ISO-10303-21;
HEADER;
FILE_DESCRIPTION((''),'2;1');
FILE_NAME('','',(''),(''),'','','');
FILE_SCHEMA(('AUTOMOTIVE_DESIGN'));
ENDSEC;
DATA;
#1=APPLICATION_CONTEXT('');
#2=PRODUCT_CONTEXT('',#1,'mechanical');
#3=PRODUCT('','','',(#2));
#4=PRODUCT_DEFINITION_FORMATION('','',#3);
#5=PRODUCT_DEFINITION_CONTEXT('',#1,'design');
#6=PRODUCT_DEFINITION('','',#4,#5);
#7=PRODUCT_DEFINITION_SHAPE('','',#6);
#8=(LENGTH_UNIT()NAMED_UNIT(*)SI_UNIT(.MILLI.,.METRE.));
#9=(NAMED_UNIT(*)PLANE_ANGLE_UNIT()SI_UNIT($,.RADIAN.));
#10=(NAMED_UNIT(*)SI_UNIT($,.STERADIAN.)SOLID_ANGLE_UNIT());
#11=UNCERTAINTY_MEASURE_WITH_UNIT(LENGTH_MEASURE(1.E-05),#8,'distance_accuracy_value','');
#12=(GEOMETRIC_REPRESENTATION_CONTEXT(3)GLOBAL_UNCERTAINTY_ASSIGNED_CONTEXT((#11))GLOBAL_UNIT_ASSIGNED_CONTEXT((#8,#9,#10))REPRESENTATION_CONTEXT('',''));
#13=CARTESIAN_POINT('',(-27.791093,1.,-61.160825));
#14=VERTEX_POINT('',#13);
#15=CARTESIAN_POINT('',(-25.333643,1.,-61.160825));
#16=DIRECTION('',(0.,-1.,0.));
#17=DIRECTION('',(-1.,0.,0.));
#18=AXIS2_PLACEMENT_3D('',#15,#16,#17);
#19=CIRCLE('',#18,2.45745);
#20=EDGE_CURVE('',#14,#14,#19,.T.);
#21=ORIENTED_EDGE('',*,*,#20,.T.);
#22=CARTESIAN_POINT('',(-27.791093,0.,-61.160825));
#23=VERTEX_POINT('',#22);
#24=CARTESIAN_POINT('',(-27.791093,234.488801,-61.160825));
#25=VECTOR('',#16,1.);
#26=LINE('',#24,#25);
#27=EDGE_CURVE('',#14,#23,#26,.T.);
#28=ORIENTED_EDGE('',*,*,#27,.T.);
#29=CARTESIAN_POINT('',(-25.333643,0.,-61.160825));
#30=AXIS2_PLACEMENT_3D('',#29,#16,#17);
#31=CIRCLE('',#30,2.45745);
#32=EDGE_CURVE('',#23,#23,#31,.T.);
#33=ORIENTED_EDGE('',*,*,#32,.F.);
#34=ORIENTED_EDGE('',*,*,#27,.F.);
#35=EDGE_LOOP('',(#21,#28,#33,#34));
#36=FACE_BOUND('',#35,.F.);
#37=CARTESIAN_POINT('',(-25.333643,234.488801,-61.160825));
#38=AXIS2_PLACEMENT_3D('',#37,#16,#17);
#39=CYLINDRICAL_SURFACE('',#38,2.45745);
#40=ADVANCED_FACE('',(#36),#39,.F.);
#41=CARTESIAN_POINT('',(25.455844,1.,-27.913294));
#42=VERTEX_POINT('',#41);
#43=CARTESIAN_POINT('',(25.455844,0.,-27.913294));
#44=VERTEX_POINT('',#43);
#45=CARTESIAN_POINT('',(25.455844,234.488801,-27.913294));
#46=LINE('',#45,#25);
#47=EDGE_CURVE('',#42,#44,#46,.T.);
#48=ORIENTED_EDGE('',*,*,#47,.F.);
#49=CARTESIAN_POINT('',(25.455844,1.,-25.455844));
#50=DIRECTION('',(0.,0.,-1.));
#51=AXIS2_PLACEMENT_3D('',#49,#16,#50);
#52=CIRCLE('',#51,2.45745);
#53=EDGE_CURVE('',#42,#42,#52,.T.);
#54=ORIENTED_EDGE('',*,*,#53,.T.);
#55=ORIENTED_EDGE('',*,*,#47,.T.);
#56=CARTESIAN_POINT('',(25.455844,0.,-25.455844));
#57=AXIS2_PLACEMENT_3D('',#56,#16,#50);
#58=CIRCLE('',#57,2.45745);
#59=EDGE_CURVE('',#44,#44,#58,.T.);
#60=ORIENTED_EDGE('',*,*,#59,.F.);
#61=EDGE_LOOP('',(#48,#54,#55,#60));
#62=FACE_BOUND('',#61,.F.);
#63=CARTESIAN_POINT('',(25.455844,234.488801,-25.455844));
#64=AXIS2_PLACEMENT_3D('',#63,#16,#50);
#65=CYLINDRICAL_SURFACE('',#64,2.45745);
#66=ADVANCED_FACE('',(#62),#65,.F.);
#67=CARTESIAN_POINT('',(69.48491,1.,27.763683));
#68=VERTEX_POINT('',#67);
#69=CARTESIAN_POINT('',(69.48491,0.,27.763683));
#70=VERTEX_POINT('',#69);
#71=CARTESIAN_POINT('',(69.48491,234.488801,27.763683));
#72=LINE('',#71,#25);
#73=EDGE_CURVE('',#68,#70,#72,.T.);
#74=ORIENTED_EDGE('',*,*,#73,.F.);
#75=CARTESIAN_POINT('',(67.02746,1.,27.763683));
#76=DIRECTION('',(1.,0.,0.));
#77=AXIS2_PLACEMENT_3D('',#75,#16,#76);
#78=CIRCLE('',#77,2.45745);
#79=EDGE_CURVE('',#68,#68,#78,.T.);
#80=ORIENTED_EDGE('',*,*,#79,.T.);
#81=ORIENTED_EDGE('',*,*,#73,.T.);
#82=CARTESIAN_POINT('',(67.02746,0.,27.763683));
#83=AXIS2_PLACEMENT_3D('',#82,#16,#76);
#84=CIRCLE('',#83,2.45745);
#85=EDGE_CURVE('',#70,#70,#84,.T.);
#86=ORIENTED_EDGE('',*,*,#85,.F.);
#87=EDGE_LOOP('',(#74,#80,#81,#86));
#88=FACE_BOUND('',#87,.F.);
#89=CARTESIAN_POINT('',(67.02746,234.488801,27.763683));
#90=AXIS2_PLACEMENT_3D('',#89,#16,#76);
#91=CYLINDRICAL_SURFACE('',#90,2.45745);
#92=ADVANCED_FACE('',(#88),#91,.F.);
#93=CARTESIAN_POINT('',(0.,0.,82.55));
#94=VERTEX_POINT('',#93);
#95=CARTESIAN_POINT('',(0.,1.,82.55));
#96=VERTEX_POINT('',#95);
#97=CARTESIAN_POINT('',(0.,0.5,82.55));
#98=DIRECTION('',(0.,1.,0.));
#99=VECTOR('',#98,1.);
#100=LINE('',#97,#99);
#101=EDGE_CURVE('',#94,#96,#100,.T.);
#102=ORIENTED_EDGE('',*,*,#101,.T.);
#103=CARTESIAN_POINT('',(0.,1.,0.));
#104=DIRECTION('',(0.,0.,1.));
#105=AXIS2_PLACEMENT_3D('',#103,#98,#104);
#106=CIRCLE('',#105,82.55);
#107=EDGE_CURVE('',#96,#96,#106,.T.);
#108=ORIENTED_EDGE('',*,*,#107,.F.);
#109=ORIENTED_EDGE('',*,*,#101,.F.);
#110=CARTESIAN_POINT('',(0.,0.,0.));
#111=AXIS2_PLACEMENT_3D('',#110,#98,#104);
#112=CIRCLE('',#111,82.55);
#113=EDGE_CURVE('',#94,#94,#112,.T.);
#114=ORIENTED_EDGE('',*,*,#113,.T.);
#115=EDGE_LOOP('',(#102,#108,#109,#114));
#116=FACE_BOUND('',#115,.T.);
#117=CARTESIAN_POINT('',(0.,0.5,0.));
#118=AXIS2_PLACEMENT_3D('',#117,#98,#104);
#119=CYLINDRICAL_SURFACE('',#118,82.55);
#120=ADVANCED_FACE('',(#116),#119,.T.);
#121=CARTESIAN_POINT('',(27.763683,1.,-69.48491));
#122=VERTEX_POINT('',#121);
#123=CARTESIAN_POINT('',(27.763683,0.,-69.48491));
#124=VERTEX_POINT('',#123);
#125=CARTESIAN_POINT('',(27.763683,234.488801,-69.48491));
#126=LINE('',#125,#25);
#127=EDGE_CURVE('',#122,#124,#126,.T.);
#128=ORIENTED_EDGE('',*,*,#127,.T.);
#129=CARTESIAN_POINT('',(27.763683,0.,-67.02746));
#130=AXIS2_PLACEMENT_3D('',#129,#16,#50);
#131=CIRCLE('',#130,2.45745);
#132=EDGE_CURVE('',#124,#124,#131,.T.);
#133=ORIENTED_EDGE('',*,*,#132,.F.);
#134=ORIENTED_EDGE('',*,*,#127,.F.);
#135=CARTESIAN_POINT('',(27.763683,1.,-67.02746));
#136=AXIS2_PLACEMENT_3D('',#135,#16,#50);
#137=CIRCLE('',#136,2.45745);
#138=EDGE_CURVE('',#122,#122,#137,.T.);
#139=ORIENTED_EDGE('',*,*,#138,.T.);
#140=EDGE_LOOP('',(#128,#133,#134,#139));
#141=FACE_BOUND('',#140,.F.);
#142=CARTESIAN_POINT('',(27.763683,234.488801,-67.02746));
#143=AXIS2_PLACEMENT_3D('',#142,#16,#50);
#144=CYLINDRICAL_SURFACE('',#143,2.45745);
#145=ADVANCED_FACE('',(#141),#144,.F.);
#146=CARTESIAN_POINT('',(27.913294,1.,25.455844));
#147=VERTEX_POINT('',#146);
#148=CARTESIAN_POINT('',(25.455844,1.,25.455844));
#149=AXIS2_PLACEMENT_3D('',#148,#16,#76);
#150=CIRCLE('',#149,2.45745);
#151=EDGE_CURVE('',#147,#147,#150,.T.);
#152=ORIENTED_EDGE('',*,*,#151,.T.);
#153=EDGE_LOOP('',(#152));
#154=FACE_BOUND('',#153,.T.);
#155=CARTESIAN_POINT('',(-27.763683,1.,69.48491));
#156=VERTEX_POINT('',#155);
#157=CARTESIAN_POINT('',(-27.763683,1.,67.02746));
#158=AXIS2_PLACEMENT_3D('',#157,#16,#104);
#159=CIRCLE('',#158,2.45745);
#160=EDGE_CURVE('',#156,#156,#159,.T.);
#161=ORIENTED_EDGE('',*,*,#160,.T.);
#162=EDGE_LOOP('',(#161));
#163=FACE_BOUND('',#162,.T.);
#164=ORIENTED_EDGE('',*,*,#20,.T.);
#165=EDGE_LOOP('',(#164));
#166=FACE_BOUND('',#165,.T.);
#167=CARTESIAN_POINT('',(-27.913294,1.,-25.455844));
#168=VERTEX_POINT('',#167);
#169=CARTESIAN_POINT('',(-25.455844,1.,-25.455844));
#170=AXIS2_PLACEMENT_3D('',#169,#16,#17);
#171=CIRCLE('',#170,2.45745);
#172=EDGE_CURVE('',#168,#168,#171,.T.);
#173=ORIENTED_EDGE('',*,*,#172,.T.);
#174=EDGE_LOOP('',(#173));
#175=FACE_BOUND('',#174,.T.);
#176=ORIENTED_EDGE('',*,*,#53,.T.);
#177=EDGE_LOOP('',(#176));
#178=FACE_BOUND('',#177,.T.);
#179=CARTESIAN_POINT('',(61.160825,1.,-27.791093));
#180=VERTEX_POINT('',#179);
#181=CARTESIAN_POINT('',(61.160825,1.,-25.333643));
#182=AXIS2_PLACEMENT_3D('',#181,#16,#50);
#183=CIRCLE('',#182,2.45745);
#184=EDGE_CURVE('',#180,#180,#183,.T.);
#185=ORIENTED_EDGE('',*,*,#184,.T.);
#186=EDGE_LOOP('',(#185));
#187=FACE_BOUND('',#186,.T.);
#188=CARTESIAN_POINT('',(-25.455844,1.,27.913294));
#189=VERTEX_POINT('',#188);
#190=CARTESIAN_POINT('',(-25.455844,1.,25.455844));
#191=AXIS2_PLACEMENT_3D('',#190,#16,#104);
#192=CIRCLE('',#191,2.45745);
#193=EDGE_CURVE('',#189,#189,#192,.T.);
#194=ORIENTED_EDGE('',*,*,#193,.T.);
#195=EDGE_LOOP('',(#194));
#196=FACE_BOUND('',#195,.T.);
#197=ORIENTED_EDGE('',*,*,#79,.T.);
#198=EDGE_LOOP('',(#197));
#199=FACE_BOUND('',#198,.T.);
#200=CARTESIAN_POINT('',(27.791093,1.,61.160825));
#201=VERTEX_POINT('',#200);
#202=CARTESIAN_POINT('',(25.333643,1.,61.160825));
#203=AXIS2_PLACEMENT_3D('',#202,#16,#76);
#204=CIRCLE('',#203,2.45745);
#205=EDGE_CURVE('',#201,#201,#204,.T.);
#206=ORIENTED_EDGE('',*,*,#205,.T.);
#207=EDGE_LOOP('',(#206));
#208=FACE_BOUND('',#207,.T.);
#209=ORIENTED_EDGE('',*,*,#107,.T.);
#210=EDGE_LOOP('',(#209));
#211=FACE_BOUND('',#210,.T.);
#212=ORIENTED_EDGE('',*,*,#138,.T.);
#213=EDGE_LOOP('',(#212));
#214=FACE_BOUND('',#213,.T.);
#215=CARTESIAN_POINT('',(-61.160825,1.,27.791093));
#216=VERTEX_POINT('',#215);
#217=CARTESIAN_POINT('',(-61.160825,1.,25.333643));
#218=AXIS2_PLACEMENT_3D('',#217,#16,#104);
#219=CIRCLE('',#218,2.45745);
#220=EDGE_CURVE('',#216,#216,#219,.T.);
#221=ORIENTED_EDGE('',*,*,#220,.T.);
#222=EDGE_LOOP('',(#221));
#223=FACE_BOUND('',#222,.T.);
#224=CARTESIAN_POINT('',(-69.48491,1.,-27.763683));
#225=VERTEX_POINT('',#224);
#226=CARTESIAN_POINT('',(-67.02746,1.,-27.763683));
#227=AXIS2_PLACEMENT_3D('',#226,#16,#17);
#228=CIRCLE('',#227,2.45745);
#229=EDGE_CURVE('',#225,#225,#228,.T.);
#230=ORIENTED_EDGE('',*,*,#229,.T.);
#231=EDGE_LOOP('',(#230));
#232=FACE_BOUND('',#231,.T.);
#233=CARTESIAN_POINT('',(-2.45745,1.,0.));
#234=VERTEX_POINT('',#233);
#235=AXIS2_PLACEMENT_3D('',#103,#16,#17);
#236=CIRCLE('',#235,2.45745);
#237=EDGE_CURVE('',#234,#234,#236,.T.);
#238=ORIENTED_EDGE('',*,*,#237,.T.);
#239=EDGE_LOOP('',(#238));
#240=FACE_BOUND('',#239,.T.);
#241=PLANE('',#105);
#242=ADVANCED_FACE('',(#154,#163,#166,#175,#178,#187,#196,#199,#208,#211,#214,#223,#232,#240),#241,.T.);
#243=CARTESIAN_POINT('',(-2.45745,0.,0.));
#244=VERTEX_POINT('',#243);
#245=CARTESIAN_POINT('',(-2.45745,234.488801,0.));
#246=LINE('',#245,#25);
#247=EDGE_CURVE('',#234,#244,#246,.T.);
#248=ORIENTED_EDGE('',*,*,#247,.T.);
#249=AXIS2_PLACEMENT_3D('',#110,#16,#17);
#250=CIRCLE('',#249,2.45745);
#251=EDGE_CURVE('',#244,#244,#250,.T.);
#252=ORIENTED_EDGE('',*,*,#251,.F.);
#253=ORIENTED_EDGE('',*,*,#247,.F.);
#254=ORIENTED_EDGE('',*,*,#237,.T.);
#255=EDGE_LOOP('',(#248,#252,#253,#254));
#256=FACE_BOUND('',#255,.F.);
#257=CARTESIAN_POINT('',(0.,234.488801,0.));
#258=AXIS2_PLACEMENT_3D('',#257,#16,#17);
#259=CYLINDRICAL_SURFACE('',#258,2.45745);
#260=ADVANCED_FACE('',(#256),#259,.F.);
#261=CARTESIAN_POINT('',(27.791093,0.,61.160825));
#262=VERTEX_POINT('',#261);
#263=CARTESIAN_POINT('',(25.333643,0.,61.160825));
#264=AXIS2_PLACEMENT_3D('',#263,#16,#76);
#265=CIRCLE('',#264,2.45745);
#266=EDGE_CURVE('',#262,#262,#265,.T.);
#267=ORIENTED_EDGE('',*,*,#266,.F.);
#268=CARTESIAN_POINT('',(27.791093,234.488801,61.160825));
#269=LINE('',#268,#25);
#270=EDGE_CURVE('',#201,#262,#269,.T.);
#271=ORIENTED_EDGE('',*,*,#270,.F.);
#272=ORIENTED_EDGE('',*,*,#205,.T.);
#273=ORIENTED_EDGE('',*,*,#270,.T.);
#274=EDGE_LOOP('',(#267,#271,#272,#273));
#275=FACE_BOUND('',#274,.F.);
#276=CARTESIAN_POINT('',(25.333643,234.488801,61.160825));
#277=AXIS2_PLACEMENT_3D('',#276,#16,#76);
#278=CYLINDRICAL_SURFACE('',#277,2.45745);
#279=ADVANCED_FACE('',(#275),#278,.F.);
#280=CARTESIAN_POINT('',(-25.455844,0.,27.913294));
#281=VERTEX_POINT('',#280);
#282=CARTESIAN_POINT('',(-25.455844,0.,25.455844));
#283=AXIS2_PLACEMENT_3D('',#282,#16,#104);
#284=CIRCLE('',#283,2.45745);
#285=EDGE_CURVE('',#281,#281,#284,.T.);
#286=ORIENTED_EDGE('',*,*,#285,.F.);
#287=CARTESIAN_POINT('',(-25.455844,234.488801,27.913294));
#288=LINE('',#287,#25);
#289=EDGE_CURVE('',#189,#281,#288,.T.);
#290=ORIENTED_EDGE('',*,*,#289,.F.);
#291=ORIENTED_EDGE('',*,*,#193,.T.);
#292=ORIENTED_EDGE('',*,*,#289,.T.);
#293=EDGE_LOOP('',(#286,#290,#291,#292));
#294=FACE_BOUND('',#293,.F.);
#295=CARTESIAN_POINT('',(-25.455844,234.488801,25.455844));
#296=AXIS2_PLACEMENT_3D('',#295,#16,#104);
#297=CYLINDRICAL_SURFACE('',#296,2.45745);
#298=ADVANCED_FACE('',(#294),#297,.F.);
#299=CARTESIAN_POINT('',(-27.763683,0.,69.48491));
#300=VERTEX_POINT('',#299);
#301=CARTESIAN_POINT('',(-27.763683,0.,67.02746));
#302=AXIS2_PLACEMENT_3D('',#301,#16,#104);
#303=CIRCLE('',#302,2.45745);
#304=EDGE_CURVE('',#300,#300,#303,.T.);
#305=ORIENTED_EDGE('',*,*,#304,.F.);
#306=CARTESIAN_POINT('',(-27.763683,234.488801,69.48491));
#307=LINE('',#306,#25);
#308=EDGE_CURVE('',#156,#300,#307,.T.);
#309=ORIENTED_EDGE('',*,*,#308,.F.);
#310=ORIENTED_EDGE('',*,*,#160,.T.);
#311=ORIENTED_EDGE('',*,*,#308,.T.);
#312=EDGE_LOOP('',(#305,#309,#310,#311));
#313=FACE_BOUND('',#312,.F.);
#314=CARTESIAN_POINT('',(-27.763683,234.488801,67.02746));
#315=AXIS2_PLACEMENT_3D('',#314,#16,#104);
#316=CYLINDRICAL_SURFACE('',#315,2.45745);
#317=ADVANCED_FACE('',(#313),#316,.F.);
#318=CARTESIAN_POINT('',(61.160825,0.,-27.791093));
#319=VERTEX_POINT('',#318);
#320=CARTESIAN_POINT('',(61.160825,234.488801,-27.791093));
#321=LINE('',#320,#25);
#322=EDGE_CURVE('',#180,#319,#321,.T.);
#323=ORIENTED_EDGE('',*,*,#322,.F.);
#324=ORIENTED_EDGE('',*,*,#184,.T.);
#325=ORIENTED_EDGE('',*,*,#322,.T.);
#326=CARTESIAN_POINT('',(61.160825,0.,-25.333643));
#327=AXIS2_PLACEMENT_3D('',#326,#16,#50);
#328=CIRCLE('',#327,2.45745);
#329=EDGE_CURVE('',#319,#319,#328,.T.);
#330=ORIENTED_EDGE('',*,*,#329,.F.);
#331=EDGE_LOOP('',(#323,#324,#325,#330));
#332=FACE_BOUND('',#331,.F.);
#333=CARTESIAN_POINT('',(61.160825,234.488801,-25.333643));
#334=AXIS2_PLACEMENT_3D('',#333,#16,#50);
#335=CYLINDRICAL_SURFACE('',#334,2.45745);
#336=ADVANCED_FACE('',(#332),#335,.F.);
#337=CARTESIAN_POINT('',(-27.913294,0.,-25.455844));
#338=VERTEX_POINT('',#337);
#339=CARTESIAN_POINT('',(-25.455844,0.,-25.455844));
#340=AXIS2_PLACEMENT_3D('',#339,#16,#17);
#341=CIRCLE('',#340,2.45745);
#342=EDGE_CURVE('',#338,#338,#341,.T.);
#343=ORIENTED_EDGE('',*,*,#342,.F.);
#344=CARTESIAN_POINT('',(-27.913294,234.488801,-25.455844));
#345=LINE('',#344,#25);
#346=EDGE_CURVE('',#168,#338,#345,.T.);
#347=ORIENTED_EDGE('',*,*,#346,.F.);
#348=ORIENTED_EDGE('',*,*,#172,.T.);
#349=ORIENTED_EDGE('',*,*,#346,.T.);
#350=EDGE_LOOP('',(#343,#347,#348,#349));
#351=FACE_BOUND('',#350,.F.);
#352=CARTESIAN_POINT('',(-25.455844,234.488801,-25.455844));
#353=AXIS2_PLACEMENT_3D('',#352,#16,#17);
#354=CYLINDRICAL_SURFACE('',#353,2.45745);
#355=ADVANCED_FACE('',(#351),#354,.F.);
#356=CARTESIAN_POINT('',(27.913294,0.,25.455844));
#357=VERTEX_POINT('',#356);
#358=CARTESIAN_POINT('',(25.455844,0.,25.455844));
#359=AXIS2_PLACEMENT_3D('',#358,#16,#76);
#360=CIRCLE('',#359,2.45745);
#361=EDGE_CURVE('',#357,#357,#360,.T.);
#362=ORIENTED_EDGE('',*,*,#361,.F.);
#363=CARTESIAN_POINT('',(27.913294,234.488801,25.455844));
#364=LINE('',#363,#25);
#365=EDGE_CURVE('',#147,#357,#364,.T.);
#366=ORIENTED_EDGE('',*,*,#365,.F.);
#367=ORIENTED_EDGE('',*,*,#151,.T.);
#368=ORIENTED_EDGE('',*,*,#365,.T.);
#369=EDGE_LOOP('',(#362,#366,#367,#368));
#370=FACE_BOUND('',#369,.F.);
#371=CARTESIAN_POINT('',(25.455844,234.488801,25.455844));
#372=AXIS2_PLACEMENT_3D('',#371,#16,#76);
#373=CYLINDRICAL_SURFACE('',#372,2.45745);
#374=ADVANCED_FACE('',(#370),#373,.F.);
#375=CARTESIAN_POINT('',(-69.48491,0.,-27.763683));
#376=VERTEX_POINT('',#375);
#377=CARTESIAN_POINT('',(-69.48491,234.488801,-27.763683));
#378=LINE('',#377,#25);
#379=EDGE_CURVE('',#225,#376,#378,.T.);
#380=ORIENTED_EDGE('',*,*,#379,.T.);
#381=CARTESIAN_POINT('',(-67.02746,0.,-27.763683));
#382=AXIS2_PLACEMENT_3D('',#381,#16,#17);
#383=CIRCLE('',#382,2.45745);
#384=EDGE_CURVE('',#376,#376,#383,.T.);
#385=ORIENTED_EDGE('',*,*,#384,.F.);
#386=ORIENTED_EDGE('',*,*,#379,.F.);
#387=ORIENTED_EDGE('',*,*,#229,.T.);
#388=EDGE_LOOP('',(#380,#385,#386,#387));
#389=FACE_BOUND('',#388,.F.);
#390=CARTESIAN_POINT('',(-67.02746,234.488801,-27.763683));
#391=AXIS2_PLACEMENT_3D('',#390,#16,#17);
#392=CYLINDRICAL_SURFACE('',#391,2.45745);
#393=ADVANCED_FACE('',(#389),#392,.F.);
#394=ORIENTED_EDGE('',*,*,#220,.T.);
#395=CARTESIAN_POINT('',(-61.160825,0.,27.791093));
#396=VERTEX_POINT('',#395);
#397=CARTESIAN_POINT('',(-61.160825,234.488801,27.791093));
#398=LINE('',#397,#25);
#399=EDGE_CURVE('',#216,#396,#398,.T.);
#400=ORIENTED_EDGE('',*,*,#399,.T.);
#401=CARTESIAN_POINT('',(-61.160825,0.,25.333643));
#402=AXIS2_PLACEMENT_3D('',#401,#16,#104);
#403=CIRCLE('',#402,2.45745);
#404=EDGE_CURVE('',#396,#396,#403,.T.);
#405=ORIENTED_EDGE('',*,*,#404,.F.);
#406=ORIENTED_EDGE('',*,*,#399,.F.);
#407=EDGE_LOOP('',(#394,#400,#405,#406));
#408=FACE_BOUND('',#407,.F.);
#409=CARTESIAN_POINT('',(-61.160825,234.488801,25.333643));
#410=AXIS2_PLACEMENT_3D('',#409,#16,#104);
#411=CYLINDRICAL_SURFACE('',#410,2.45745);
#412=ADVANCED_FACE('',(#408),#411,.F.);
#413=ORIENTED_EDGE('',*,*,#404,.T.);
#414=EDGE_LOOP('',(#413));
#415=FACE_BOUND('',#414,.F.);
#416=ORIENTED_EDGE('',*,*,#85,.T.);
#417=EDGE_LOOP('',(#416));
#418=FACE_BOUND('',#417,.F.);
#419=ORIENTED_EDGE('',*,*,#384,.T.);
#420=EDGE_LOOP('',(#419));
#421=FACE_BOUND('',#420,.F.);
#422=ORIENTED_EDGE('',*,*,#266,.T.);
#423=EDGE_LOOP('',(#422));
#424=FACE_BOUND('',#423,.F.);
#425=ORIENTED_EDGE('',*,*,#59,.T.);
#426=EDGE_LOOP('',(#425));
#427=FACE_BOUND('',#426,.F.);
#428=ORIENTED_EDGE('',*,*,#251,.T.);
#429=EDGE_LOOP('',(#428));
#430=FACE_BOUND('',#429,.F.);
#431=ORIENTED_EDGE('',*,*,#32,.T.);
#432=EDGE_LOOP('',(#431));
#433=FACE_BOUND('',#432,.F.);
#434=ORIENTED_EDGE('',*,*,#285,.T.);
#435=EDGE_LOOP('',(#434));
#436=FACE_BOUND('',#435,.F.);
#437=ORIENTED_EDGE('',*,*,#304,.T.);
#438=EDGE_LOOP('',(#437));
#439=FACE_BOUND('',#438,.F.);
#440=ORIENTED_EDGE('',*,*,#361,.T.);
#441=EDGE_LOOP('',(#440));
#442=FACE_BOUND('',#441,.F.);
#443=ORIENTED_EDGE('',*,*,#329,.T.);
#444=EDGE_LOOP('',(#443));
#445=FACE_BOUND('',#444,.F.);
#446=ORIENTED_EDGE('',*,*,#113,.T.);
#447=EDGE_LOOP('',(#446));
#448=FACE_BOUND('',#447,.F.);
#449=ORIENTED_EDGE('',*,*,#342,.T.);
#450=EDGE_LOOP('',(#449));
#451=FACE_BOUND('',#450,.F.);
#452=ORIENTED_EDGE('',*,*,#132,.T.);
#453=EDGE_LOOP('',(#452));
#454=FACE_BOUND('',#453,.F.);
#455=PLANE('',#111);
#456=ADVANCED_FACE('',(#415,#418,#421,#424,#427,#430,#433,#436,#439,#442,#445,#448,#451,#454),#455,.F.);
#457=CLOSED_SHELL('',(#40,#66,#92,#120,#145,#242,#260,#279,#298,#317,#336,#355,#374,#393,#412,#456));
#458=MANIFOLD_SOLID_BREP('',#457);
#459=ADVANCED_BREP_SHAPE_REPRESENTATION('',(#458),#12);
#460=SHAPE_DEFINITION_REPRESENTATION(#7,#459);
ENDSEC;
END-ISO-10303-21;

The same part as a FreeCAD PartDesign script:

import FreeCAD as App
import Part
import Sketcher
Q = App.Units.Quantity

doc = App.newDocument("Part")
body = doc.addObject("PartDesign::Body", "Body")

sketch1 = body.newObject("Sketcher::SketchObject", "Sketch")
sketch1.AttachmentSupport = (doc.getObject("YZ_Plane"), [""])
sketch1.MapMode = "FlatFace"
sketch1.addGeometry([
    Part.LineSegment(App.Vector(1, 82.55, 0), App.Vector(0, 82.55, 0)),
    Part.LineSegment(App.Vector(0, 82.55, 0), App.Vector(0, 0, 0)),
    Part.LineSegment(App.Vector(0, 0, 0), App.Vector(1, 0, 0)),
    Part.LineSegment(App.Vector(1, 0, 0), App.Vector(1, 82.55, 0)),
], False)
sketch1.addConstraint([
    Sketcher.Constraint("Coincident", 0, 2, 1, 1),
    Sketcher.Constraint("Coincident", 1, 2, 2, 1),
    Sketcher.Constraint("Coincident", 2, 2, 3, 1),
    Sketcher.Constraint("Coincident", 3, 2, 0, 1),
    Sketcher.Constraint("Horizontal", 0),
    Sketcher.Constraint("Vertical", 1),
    Sketcher.Constraint("Horizontal", 2),
    Sketcher.Constraint("Vertical", 3),
    Sketcher.Constraint("Coincident", 1, 2, -1, 1),
    Sketcher.Constraint("DistanceX", 0, 2, 0, 1, Q("1 mm")),
    Sketcher.Constraint("DistanceY", 1, 2, 1, 1, Q("82.55 mm")),
])
revolution = body.newObject("PartDesign::Revolution", "Revolution")
revolution.Profile = sketch1
revolution.ReferenceAxis = (sketch1, ["H_Axis"])
revolution.Angle = 360

sketch2 = body.newObject("Sketcher::SketchObject", "Sketch001")
sketch2.AttachmentSupport = (doc.getObject("XZ_Plane"), [""])
sketch2.MapMode = "FlatFace"
sketch2.AttachmentOffset = App.Placement(App.Vector(0, 0, -1), App.Rotation())
sketch2.addGeometry([
    Part.Circle(App.Vector(-25.333643, -61.160825, 0), App.Vector(0, 0, 1), 2.45745),
    Part.Circle(App.Vector(264.743675, -73.787759, 0), App.Vector(0, 0, 1), 2.45745),
    Part.Circle(App.Vector(-67.02746, -27.763683, 0), App.Vector(0, 0, 1), 2.45745),
    Part.Circle(App.Vector(-25.455844, -25.455844, 0), App.Vector(0, 0, 1), 2.45745),
], False)
sketch2.addConstraint([
    Sketcher.Constraint("Equal", 0, 1),
    Sketcher.Constraint("Equal", 1, 2),
    Sketcher.Constraint("Equal", 2, 3),
    Sketcher.Constraint("Diameter", 0, Q("4.9149 mm")),
    Sketcher.Constraint("DistanceX", 3, 3, 0, 3, Q("0.122201 mm")),
    Sketcher.Constraint("DistanceY", 1, 3, -1, 1, Q("73.787759 mm")),
    Sketcher.Constraint("DistanceX", 2, 3, -1, 1, Q("67.02746 mm")),
    Sketcher.Constraint("DistanceX", 0, 3, 1, 3, Q("290.077318 mm")),
    Sketcher.Constraint("DistanceY", 0, 3, 3, 3, Q("35.704981 mm")),
    Sketcher.Constraint("DistanceY", 2, 3, 3, 3, Q("2.307839 mm")),
    Sketcher.Constraint("DistanceX", 0, 3, -1, 1, Q("25.333643 mm")),
    Sketcher.Constraint("DistanceY", 0, 3, -1, 1, Q("61.160825 mm")),
])
doc.recompute()
hole = body.newObject("PartDesign::Hole", "Hole")
hole.Profile = sketch2
hole.ThreadType = "None"
hole.Diameter = 4.9149
hole.DepthType = "ThroughAll"
hole.Reversed = True
doc.recompute()

polarpattern = body.newObject("PartDesign::PolarPattern", "PolarPattern")
polarpattern.Originals = [hole]
polarpattern.Axis = (doc.getObject("Y_Axis"), [""])
polarpattern.Angle = 360
polarpattern.Occurrences = 4
body.Tip = polarpattern

sketch3 = body.newObject("Sketcher::SketchObject", "Sketch002")
sketch3.AttachmentSupport = (doc.getObject("XZ_Plane"), [""])
sketch3.MapMode = "FlatFace"
sketch3.AttachmentOffset = App.Placement(App.Vector(0, 0, -1), App.Rotation())
sketch3.addGeometry(Part.Circle(App.Vector(0, 0, 0), App.Vector(0, 0, 1), 2.45745), False)
sketch3.addConstraint([
    Sketcher.Constraint("Coincident", 0, 3, -1, 1),
    Sketcher.Constraint("Diameter", 0, Q("4.9149 mm")),
])
doc.recompute()
hole2 = body.newObject("PartDesign::Hole", "Hole001")
hole2.Profile = sketch3
hole2.ThreadType = "None"
hole2.Diameter = 4.9149
hole2.DepthType = "ThroughAll"
hole2.Reversed = True

doc.recompute()
